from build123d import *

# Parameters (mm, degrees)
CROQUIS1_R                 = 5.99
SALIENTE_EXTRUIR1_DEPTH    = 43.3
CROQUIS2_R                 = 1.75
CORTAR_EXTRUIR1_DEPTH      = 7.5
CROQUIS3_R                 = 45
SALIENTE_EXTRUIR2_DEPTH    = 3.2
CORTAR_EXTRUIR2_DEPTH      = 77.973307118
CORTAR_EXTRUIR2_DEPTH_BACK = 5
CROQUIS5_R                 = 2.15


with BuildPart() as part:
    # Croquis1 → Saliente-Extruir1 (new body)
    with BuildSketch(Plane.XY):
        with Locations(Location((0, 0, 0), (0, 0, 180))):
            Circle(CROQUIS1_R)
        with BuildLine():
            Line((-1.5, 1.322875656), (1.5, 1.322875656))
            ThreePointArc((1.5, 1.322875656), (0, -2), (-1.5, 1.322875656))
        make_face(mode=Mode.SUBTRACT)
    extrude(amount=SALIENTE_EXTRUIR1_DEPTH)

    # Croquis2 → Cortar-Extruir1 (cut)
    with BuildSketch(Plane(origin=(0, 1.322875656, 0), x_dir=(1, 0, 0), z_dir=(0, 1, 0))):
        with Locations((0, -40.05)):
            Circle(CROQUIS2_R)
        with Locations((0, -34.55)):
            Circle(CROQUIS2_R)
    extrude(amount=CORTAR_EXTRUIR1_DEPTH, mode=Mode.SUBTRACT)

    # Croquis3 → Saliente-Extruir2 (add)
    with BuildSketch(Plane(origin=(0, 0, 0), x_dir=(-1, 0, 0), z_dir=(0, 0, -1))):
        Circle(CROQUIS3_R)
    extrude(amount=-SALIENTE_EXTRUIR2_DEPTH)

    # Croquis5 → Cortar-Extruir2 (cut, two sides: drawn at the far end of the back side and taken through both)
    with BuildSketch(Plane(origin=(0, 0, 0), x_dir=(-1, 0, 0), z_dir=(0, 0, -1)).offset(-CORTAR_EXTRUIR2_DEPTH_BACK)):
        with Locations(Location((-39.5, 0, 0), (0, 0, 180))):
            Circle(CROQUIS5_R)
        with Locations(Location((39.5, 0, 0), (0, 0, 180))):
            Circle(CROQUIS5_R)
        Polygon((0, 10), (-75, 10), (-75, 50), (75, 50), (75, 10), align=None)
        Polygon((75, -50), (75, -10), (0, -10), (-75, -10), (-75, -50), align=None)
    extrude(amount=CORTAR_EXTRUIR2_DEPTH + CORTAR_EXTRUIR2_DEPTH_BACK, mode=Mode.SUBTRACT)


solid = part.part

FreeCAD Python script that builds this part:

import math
import FreeCAD as App
import Part
import Sketcher
Q = App.Units.Quantity

doc = App.newDocument("Part")
body = doc.addObject("PartDesign::Body", "Body")

# Sketch on XY plane
sketch1 = body.newObject("Sketcher::SketchObject", "Sketch")
sketch1.AttachmentSupport = (doc.getObject("XY_Plane"), [""])
sketch1.MapMode = "FlatFace"
sketch1.addGeometry(Part.Circle(App.Vector(0, 0, 0), App.Vector(0, 0, 1), 6), False)
sketch1.addGeometry(Part.ArcOfCircle(Part.Circle(App.Vector(0, 0, 0), App.Vector(0, 0, 1), 2), math.radians(139), math.radians(401)), False)
sketch1.addGeometry(Part.LineSegment(App.Vector(-1.5, 1.3, 0), App.Vector(1.5, 1.3, 0)), False)
sketch1.addConstraint(Sketcher.Constraint("Coincident", 1, 1, 2, 1))
sketch1.addConstraint(Sketcher.Constraint("Coincident", 2, 2, 1, 2))
sketch1.addConstraint(Sketcher.Constraint("Horizontal", 2))
sketch1.addConstraint(Sketcher.Constraint("Coincident", 0, 3, -1, 1))
sketch1.addConstraint(Sketcher.Constraint("Coincident", 1, 3, -1, 1))
sketch1.addConstraint(Sketcher.Constraint("Radius", 1, Q("2 mm")))
sketch1.addConstraint(Sketcher.Constraint("Diameter", 0, Q("11.98 mm")))
sketch1.addConstraint(Sketcher.Constraint("DistanceX", 2, 1, 2, 2, Q("3 mm")))
pad1 = body.newObject("PartDesign::Pad", "Pad")
pad1.Profile = sketch1
pad1.Length = 43.3

# Sketch on XZ plane
sketch2 = body.newObject("Sketcher::SketchObject", "Sketch001")
sketch2.AttachmentSupport = (doc.getObject("XZ_Plane"), [""])
sketch2.MapMode = "FlatFace"
sketch2.AttachmentOffset = App.Placement(App.Vector(0, 0, -1.322876), App.Rotation())
sketch2.addGeometry(Part.Circle(App.Vector(0, 40, 0), App.Vector(0, 0, 1), 1.8), False)
sketch2.addGeometry(Part.Circle(App.Vector(0, 34.5, 0), App.Vector(0, 0, 1), 1.8), False)
sketch2.addConstraint(Sketcher.Constraint("Equal", 0, 1))
sketch2.addConstraint(Sketcher.Constraint("PointOnObject", 0, 3, -2))
sketch2.addConstraint(Sketcher.Constraint("PointOnObject", 1, 3, -2))
sketch2.addConstraint(Sketcher.Constraint("Diameter", 0, Q("3.5 mm")))
sketch2.addConstraint(Sketcher.Constraint("DistanceY", 1, 3, 0, 3, Q("5.5 mm")))
sketch2.addConstraint(Sketcher.Constraint("DistanceY", -1, 1, 0, 3, Q("40.05 mm")))
pocket1 = body.newObject("PartDesign::Pocket", "Pocket")
pocket1.Profile = sketch2
pocket1.Length = 7.5

# Sketch on XY plane
sketch3 = body.newObject("Sketcher::SketchObject", "Sketch002")
sketch3.AttachmentSupport = (doc.getObject("XY_Plane"), [""])
sketch3.MapMode = "FlatFace"
sketch3.addGeometry(Part.Circle(App.Vector(0, 0, 0), App.Vector(0, 0, 1), 45), False)
sketch3.addConstraint(Sketcher.Constraint("Coincident", 0, 3, -1, 1))
sketch3.addConstraint(Sketcher.Constraint("Diameter", 0, Q("90 mm")))
pad2 = body.newObject("PartDesign::Pad", "Pad001")
pad2.Profile = sketch3
pad2.Length = 3.2

# Sketch on XY plane
sketch4 = body.newObject("Sketcher::SketchObject", "Sketch003")
sketch4.AttachmentSupport = (doc.getObject("XY_Plane"), [""])
sketch4.MapMode = "FlatFace"
sketch4.addGeometry(Part.Circle(App.Vector(39.5, 0, 0), App.Vector(0, 0, 1), 2.1), False)
sketch4.addGeometry(Part.Circle(App.Vector(-39.5, 0, 0), App.Vector(0, 0, 1), 2.1), False)
sketch4.addGeometry(Part.LineSegment(App.Vector(75, 10, 0), App.Vector(-75, 10, 0)), False)
sketch4.addGeometry(Part.LineSegment(App.Vector(-75, 10, 0), App.Vector(-75, 50, 0)), False)
sketch4.addGeometry(Part.LineSegment(App.Vector(-75, 50, 0), App.Vector(75, 50, 0)), False)
sketch4.addGeometry(Part.LineSegment(App.Vector(75, 50, 0), App.Vector(75, 10, 0)), False)
sketch4.addGeometry(Part.LineSegment(App.Vector(-75, -50, 0), App.Vector(-75, -10, 0)), False)
sketch4.addGeometry(Part.LineSegment(App.Vector(-75, -10, 0), App.Vector(75, -10, 0)), False)
sketch4.addGeometry(Part.LineSegment(App.Vector(75, -10, 0), App.Vector(75, -50, 0)), False)
sketch4.addGeometry(Part.LineSegment(App.Vector(75, -50, 0), App.Vector(-75, -50, 0)), False)
sketch4.addConstraint(Sketcher.Constraint("Coincident", 2, 2, 3, 1))
sketch4.addConstraint(Sketcher.Constraint("Coincident", 3, 2, 4, 1))
sketch4.addConstraint(Sketcher.Constraint("Coincident", 4, 2, 5, 1))
sketch4.addConstraint(Sketcher.Constraint("Coincident", 5, 2, 2, 1))
sketch4.addConstraint(Sketcher.Constraint("Coincident", 6, 2, 7, 1))
sketch4.addConstraint(Sketcher.Constraint("Coincident", 7, 2, 8, 1))
sketch4.addConstraint(Sketcher.Constraint("Coincident", 8, 2, 9, 1))
sketch4.addConstraint(Sketcher.Constraint("Coincident", 9, 2, 6, 1))
sketch4.addConstraint(Sketcher.Constraint("Horizontal", 2))
sketch4.addConstraint(Sketcher.Constraint("Vertical", 3))
sketch4.addConstraint(Sketcher.Constraint("Horizontal", 4))
sketch4.addConstraint(Sketcher.Constraint("Vertical", 5))
sketch4.addConstraint(Sketcher.Constraint("Vertical", 6))
sketch4.addConstraint(Sketcher.Constraint("Horizontal", 7))
sketch4.addConstraint(Sketcher.Constraint("Vertical", 8))
sketch4.addConstraint(Sketcher.Constraint("Horizontal", 9))
sketch4.addConstraint(Sketcher.Constraint("Equal", 0, 1))
sketch4.addConstraint(Sketcher.Constraint("Symmetric", 0, 3, 1, 3, -1, 1))
sketch4.addConstraint(Sketcher.Constraint("Symmetric", 5, 2, 6, 2, -1, 1))
sketch4.addConstraint(Sketcher.Constraint("Symmetric", 3, 2, 8, 2, -1, 1))
sketch4.addConstraint(Sketcher.Constraint("PointOnObject", 0, 3, -1))
sketch4.addConstraint(Sketcher.Constraint("Vertical", 3, 2, 6, 2))
sketch4.addConstraint(Sketcher.Constraint("Diameter", 0, Q("4.3 mm")))
sketch4.addConstraint(Sketcher.Constraint("DistanceX", 2, 2, 2, 1, Q("150 mm")))
sketch4.addConstraint(Sketcher.Constraint("DistanceY", 3, 1, 3, 2, Q("40 mm")))
sketch4.addConstraint(Sketcher.Constraint("DistanceY", -1, 1, 2, 2, Q("10 mm")))
sketch4.addConstraint(Sketcher.Constraint("DistanceX", 1, 3, 0, 3, Q("79 mm")))
pocket2 = body.newObject("PartDesign::Pocket", "Pocket001")
pocket2.Profile = sketch4
pocket2.Type = "ThroughAll"
pocket2.Midplane = True

doc.recompute()
